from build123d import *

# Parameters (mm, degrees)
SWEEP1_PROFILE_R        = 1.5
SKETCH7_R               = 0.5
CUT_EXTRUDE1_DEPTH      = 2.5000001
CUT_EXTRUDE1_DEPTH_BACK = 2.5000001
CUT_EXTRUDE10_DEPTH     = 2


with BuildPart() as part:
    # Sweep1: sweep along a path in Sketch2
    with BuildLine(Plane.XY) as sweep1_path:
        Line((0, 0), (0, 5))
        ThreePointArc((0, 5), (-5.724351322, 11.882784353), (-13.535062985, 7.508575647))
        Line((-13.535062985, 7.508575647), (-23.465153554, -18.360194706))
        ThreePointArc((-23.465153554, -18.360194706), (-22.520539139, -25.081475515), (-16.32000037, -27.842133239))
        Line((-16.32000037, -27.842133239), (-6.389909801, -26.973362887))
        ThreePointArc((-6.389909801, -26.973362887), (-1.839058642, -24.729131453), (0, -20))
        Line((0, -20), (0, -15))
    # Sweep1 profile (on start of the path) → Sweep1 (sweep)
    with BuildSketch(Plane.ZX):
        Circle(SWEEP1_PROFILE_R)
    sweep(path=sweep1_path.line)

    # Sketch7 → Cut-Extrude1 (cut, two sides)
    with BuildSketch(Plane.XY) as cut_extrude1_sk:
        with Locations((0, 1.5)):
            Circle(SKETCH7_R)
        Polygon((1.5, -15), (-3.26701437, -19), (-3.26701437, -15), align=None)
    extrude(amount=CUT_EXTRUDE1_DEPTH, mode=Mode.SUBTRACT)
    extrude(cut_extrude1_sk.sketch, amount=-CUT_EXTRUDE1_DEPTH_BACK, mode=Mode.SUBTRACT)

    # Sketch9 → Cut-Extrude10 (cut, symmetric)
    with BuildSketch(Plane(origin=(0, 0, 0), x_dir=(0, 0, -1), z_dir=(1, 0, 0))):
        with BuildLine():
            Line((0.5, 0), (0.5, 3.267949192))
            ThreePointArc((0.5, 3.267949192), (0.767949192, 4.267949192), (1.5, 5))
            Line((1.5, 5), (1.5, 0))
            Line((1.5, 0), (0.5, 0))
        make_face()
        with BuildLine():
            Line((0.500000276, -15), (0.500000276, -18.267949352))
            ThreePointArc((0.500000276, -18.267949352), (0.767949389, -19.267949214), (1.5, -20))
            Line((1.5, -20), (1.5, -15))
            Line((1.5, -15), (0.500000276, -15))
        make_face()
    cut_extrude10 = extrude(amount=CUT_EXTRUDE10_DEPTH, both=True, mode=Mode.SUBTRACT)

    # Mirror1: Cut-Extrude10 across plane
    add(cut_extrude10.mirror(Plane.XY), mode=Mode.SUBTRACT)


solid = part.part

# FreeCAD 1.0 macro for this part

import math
import FreeCAD as App
import Part
import Sketcher

V = App.Vector
Q = App.Units.Quantity

doc = App.newDocument("Part")
body = doc.addObject("PartDesign::Body", "Body")

sketch1 = body.newObject("Sketcher::SketchObject", "Sketch")
sketch1.AttachmentSupport = (doc.getObject("XZ_Plane"), [""])
sketch1.MapMode = "FlatFace"
sketch1.addGeometry(Part.Circle(V(0, 0, 0), V(0, 0, 1), 1.5), False)
sketch1.addConstraint([
    Sketcher.Constraint("Coincident", 0, 3, -1, 1),
    Sketcher.Constraint("Diameter", 0, Q("3 mm")),
])

sketch2 = body.newObject("Sketcher::SketchObject", "Sketch001")
sketch2.AttachmentSupport = (doc.getObject("XY_Plane"), [""])
sketch2.MapMode = "FlatFace"
sketch2.addGeometry([
    Part.LineSegment(V(0, 0, 0), V(0, 5, 0)),
    Part.ArcOfCircle(Part.Circle(V(-7, 5, 0), V(0, 0, 1), 7), math.radians(0), math.radians(159)),
    Part.LineSegment(V(-14, 8, 0), V(-23, -18, 0)),
    Part.ArcOfCircle(Part.Circle(V(-17, -21, 0), V(0, 0, 1), 7), math.radians(159), math.radians(275)),
    Part.LineSegment(V(-16, -28, 0), V(-6, -27, 0)),
    Part.ArcOfCircle(Part.Circle(V(-7, -20, 0), V(0, 0, 1), 7), math.radians(-85), math.radians(0)),
    Part.LineSegment(V(0, -20, 0), V(0, -15, 0)),
], False)
sketch2.addConstraint([
    Sketcher.Constraint("Tangent", 0, 2, 1, 1),
    Sketcher.Constraint("Tangent", 1, 2, 2, 1),
    Sketcher.Constraint("Tangent", 2, 2, 3, 1),
    Sketcher.Constraint("Tangent", 3, 2, 4, 1),
    Sketcher.Constraint("Tangent", 4, 2, 5, 1),
    Sketcher.Constraint("Tangent", 5, 2, 6, 1),
    Sketcher.Constraint("Vertical", 0),
    Sketcher.Constraint("Vertical", 6),
    Sketcher.Constraint("Coincident", 0, 1, -1, 1),
    Sketcher.Constraint("Equal", 1, 3),
    Sketcher.Constraint("Equal", 3, 5),
    Sketcher.Constraint("PointOnObject", 5, 2, -2),
    Sketcher.Constraint("Equal", 0, 6),
    Sketcher.Constraint("Radius", 1, Q("7 mm")),
    Sketcher.Constraint("DistanceY", 0, 1, 0, 2, Q("5 mm")),
    Sketcher.Constraint("Angle", 2, Q("-111 deg")),
    Sketcher.Constraint("Angle", 4, Q("5 deg")),
    Sketcher.Constraint("DistanceY", 5, 3, -1, 1, Q("20 mm")),
])
doc.recompute()

additivepipe = body.newObject("PartDesign::AdditivePipe", "AdditivePipe")
additivepipe.Profile = sketch1
additivepipe.Spine = (sketch2, ["Edge1", "Edge2", "Edge3", "Edge4", "Edge5", "Edge6", "Edge7"])

sketch3 = body.newObject("Sketcher::SketchObject", "Sketch002")
sketch3.AttachmentSupport = (doc.getObject("XY_Plane"), [""])
sketch3.MapMode = "FlatFace"
sketch3.addGeometry([
    Part.Circle(V(0, 1.5, 0), V(0, 0, 1), 0.5),
    Part.LineSegment(V(-3.3, -19, 0), V(1.5, -15, 0)),
    Part.LineSegment(V(1.5, -15, 0), V(-3.3, -15, 0)),
    Part.LineSegment(V(-3.3, -15, 0), V(-3.3, -19, 0)),
], False)
sketch3.addConstraint([
    Sketcher.Constraint("Coincident", 1, 2, 2, 1),
    Sketcher.Constraint("Coincident", 2, 2, 3, 1),
    Sketcher.Constraint("Coincident", 3, 2, 1, 1),
    Sketcher.Constraint("Horizontal", 2),
    Sketcher.Constraint("Vertical", 3),
    Sketcher.Constraint("PointOnObject", 0, 3, -2),
    Sketcher.Constraint("Diameter", 0, Q("1 mm")),
    Sketcher.Constraint("DistanceY", 3, 2, 3, 1, Q("4 mm")),
    Sketcher.Constraint("Angle", 1, Q("40 deg")),
    Sketcher.Constraint("DistanceY", 1, 2, -1, 1, Q("15 mm")),
    Sketcher.Constraint("DistanceY", -1, 1, 0, 3, Q("1.5 mm")),
    Sketcher.Constraint("DistanceX", -1, 1, 1, 2, Q("1.5 mm")),
])
pocket1 = body.newObject("PartDesign::Pocket", "Pocket")
pocket1.Profile = sketch3
pocket1.Type = "ThroughAll"
pocket1.Midplane = True

sketch4 = body.newObject("Sketcher::SketchObject", "Sketch003")
sketch4.AttachmentSupport = (doc.getObject("YZ_Plane"), [""])
sketch4.MapMode = "FlatFace"
sketch4.addGeometry([
    Part.LineSegment(V(3.3, -0.5, 0), V(0, -0.5, 0)),
    Part.LineSegment(V(0, -0.5, 0), V(0, -1.5, 0)),
    Part.LineSegment(V(0, -1.5, 0), V(5, -1.5, 0)),
    Part.ArcOfCircle(Part.Circle(V(3.3, -2.5, 0), V(0, 0, 1), 2), math.radians(30), math.radians(90)),
    Part.LineSegment(V(-15, -0.5, 0), V(-18.3, -0.5, 0)),
    Part.ArcOfCircle(Part.Circle(V(-18.3, -2.5, 0), V(0, 0, 1), 2), math.radians(90), math.radians(150)),
    Part.LineSegment(V(-20, -1.5, 0), V(-15, -1.5, 0)),
    Part.LineSegment(V(-15, -1.5, 0), V(-15, -0.5, 0)),
], False)
sketch4.addConstraint([
    Sketcher.Constraint("Coincident", 0, 2, 1, 1),
    Sketcher.Constraint("Coincident", 1, 2, 2, 1),
    Sketcher.Constraint("Coincident", 2, 2, 3, 1),
    Sketcher.Constraint("Tangent", 3, 2, 0, 1),
    Sketcher.Constraint("Tangent", 4, 2, 5, 1),
    Sketcher.Constraint("Coincident", 5, 2, 6, 1),
    Sketcher.Constraint("Coincident", 6, 2, 7, 1),
    Sketcher.Constraint("Coincident", 7, 2, 4, 1),
    Sketcher.Constraint("Horizontal", 0),
    Sketcher.Constraint("Vertical", 1),
    Sketcher.Constraint("Horizontal", 2),
    Sketcher.Constraint("Horizontal", 4),
    Sketcher.Constraint("Horizontal", 6),
    Sketcher.Constraint("Vertical", 7),
    Sketcher.Constraint("Equal", 3, 5),
    Sketcher.Constraint("PointOnObject", 0, 2, -2),
    Sketcher.Constraint("Horizontal", 3, 3, 5, 3),
    Sketcher.Constraint("Horizontal", 2, 2, 5, 2),
    Sketcher.Constraint("Equal", 0, 4),
    Sketcher.Constraint("Radius", 3, Q("2 mm")),
    Sketcher.Constraint("DistanceX", 2, 1, 2, 2, Q("5 mm")),
    Sketcher.Constraint("DistanceY", 1, 2, 1, 1, Q("1 mm")),
    Sketcher.Constraint("DistanceX", 5, 2, -1, 1, Q("20 mm")),
    Sketcher.Constraint("DistanceY", 3, 3, -1, 1, Q("2.5 mm")),
])
pocket2 = body.newObject("PartDesign::Pocket", "Pocket001")
pocket2.Profile = sketch4
pocket2.Length = 4
pocket2.Midplane = True
doc.recompute()

mirrored = body.newObject("PartDesign::Mirrored", "Mirrored")
mirrored.Originals = [pocket2]
mirrored.MirrorPlane = (doc.getObject("XY_Plane"), [""])
body.Tip = mirrored

doc.recompute()
